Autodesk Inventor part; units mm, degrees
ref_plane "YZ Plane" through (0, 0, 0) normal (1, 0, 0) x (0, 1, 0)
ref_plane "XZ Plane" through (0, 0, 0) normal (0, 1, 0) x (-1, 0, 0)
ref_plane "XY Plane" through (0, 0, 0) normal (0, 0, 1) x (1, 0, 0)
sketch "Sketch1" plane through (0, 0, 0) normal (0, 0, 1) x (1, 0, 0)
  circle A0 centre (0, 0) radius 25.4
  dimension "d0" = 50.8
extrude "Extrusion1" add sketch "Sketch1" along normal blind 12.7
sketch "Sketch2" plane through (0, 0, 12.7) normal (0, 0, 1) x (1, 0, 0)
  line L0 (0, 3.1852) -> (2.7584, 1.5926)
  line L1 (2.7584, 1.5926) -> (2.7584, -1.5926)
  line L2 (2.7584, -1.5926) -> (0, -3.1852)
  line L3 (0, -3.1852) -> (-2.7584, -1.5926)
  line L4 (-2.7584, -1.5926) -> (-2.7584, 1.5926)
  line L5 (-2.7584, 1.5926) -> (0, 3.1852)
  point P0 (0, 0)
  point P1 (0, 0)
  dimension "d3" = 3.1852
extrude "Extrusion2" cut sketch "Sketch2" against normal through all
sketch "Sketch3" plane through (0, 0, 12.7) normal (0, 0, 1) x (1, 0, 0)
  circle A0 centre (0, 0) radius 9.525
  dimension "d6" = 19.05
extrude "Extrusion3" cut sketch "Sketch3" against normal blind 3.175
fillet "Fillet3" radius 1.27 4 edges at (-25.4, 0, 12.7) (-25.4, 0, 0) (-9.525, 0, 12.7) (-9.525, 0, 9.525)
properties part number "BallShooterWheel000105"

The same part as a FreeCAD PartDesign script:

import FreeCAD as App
import Part
import Sketcher
from FreeCAD import Vector
Q = App.Units.Quantity


def edges_at(feature, points):
    """Names of the edges that pass closest to the given points."""
    edges = feature.Shape.Edges
    near = lambda p: min(range(len(edges)), key=lambda i: edges[i].distToShape(Part.Vertex(*p))[0])
    return sorted({f"Edge{near(p) + 1}" for p in points})

doc = App.newDocument("Part")
body = doc.addObject("PartDesign::Body", "Body")

# Sketch on XY plane
sketch1 = doc.addObject("Sketcher::SketchObject", "Sketch")
body.addObject(sketch1)
sketch1.AttachmentSupport = (doc.XY_Plane, [""])
sketch1.MapMode = "FlatFace"
sketch1.addGeometry(Part.Circle(Vector(0, 0, 0), Vector(0, 0, 1), 25.4), False)
sketch1.addConstraint([
    Sketcher.Constraint("Coincident", 0, 3, -1, 1),
    Sketcher.Constraint("Diameter", 0, Q("2 in")),
])
pad1 = doc.addObject("PartDesign::Pad", "Pad")
body.addObject(pad1)
pad1.Profile = sketch1
pad1.Length = Q("0.5 in")

# Sketch on XY plane
sketch2 = doc.addObject("Sketcher::SketchObject", "Sketch001")
body.addObject(sketch2)
sketch2.AttachmentSupport = (doc.XY_Plane, [""])
sketch2.MapMode = "FlatFace"
sketch2.AttachmentOffset = App.Placement(Vector(0, 0, 0.5 * 25.4), App.Rotation())
sketch2.addGeometry([
    Part.LineSegment(Vector(2.7584, 1.5926, 0), Vector(0, 3.1852, 0)),  # 0
    Part.LineSegment(Vector(0, 3.1852, 0), Vector(-2.7584, 1.5926, 0)),  # 1
    Part.LineSegment(Vector(-2.7584, 1.5926, 0), Vector(-2.7584, -1.5926, 0)),  # 2
    Part.LineSegment(Vector(-2.7584, -1.5926, 0), Vector(0, -3.1852, 0)),  # 3
    Part.LineSegment(Vector(0, -3.1852, 0), Vector(2.7584, -1.5926, 0)),  # 4
    Part.LineSegment(Vector(2.7584, -1.5926, 0), Vector(2.7584, 1.5926, 0)),  # 5
], False)
sketch2.addConstraint([
    Sketcher.Constraint("Coincident", 0, 2, 1, 1),
    Sketcher.Constraint("Coincident", 1, 2, 2, 1),
    Sketcher.Constraint("Coincident", 2, 2, 3, 1),
    Sketcher.Constraint("Coincident", 3, 2, 4, 1),
    Sketcher.Constraint("Coincident", 4, 2, 5, 1),
    Sketcher.Constraint("Coincident", 5, 2, 0, 1),
    Sketcher.Constraint("Vertical", 2),
    Sketcher.Constraint("Vertical", 5),
    Sketcher.Constraint("Symmetric", 0, 2, 3, 2, -1, 1),
    Sketcher.Constraint("Symmetric", 1, 2, 4, 2, -1, 1),
    Sketcher.Constraint("PointOnObject", 0, 2, -2),
    Sketcher.Constraint("Parallel", 0, 3),
    Sketcher.Constraint("Horizontal", 2, 2, 4, 2),
    Sketcher.Constraint("DistanceY", 2, 2, 2, 1, Q("0.1254 in")),
    Sketcher.Constraint("Angle", 0, Q("149.9994 deg")),
    Sketcher.Constraint("Distance", 0, Q("0.1254 in")),
])
pocket1 = doc.addObject("PartDesign::Pocket", "Pocket")
body.addObject(pocket1)
pocket1.Profile = sketch2
pocket1.Type = "ThroughAll"

# Sketch on XY plane
sketch3 = doc.addObject("Sketcher::SketchObject", "Sketch002")
body.addObject(sketch3)
sketch3.AttachmentSupport = (doc.XY_Plane, [""])
sketch3.MapMode = "FlatFace"
sketch3.AttachmentOffset = App.Placement(Vector(0, 0, 0.5 * 25.4), App.Rotation())
sketch3.addGeometry(Part.Circle(Vector(0, 0, 0), Vector(0, 0, 1), 9.525), False)
sketch3.addConstraint([
    Sketcher.Constraint("Coincident", 0, 3, -1, 1),
    Sketcher.Constraint("Diameter", 0, Q("0.75 in")),
])
pocket2 = doc.addObject("PartDesign::Pocket", "Pocket001")
body.addObject(pocket2)
pocket2.Profile = sketch3
pocket2.Length = Q("0.125 in")
doc.recompute()

fillet = doc.addObject("PartDesign::Fillet", "Fillet")
body.addObject(fillet)
fillet.Base = (pocket2, edges_at(pocket2, [
    (-25.4, 0, 12.7),
    (-25.4, 0, 0),
    (-9.525, 0, 12.7),
    (-9.525, 0, 9.525),
]))
fillet.Radius = Q("0.05 in")

doc.recompute()
